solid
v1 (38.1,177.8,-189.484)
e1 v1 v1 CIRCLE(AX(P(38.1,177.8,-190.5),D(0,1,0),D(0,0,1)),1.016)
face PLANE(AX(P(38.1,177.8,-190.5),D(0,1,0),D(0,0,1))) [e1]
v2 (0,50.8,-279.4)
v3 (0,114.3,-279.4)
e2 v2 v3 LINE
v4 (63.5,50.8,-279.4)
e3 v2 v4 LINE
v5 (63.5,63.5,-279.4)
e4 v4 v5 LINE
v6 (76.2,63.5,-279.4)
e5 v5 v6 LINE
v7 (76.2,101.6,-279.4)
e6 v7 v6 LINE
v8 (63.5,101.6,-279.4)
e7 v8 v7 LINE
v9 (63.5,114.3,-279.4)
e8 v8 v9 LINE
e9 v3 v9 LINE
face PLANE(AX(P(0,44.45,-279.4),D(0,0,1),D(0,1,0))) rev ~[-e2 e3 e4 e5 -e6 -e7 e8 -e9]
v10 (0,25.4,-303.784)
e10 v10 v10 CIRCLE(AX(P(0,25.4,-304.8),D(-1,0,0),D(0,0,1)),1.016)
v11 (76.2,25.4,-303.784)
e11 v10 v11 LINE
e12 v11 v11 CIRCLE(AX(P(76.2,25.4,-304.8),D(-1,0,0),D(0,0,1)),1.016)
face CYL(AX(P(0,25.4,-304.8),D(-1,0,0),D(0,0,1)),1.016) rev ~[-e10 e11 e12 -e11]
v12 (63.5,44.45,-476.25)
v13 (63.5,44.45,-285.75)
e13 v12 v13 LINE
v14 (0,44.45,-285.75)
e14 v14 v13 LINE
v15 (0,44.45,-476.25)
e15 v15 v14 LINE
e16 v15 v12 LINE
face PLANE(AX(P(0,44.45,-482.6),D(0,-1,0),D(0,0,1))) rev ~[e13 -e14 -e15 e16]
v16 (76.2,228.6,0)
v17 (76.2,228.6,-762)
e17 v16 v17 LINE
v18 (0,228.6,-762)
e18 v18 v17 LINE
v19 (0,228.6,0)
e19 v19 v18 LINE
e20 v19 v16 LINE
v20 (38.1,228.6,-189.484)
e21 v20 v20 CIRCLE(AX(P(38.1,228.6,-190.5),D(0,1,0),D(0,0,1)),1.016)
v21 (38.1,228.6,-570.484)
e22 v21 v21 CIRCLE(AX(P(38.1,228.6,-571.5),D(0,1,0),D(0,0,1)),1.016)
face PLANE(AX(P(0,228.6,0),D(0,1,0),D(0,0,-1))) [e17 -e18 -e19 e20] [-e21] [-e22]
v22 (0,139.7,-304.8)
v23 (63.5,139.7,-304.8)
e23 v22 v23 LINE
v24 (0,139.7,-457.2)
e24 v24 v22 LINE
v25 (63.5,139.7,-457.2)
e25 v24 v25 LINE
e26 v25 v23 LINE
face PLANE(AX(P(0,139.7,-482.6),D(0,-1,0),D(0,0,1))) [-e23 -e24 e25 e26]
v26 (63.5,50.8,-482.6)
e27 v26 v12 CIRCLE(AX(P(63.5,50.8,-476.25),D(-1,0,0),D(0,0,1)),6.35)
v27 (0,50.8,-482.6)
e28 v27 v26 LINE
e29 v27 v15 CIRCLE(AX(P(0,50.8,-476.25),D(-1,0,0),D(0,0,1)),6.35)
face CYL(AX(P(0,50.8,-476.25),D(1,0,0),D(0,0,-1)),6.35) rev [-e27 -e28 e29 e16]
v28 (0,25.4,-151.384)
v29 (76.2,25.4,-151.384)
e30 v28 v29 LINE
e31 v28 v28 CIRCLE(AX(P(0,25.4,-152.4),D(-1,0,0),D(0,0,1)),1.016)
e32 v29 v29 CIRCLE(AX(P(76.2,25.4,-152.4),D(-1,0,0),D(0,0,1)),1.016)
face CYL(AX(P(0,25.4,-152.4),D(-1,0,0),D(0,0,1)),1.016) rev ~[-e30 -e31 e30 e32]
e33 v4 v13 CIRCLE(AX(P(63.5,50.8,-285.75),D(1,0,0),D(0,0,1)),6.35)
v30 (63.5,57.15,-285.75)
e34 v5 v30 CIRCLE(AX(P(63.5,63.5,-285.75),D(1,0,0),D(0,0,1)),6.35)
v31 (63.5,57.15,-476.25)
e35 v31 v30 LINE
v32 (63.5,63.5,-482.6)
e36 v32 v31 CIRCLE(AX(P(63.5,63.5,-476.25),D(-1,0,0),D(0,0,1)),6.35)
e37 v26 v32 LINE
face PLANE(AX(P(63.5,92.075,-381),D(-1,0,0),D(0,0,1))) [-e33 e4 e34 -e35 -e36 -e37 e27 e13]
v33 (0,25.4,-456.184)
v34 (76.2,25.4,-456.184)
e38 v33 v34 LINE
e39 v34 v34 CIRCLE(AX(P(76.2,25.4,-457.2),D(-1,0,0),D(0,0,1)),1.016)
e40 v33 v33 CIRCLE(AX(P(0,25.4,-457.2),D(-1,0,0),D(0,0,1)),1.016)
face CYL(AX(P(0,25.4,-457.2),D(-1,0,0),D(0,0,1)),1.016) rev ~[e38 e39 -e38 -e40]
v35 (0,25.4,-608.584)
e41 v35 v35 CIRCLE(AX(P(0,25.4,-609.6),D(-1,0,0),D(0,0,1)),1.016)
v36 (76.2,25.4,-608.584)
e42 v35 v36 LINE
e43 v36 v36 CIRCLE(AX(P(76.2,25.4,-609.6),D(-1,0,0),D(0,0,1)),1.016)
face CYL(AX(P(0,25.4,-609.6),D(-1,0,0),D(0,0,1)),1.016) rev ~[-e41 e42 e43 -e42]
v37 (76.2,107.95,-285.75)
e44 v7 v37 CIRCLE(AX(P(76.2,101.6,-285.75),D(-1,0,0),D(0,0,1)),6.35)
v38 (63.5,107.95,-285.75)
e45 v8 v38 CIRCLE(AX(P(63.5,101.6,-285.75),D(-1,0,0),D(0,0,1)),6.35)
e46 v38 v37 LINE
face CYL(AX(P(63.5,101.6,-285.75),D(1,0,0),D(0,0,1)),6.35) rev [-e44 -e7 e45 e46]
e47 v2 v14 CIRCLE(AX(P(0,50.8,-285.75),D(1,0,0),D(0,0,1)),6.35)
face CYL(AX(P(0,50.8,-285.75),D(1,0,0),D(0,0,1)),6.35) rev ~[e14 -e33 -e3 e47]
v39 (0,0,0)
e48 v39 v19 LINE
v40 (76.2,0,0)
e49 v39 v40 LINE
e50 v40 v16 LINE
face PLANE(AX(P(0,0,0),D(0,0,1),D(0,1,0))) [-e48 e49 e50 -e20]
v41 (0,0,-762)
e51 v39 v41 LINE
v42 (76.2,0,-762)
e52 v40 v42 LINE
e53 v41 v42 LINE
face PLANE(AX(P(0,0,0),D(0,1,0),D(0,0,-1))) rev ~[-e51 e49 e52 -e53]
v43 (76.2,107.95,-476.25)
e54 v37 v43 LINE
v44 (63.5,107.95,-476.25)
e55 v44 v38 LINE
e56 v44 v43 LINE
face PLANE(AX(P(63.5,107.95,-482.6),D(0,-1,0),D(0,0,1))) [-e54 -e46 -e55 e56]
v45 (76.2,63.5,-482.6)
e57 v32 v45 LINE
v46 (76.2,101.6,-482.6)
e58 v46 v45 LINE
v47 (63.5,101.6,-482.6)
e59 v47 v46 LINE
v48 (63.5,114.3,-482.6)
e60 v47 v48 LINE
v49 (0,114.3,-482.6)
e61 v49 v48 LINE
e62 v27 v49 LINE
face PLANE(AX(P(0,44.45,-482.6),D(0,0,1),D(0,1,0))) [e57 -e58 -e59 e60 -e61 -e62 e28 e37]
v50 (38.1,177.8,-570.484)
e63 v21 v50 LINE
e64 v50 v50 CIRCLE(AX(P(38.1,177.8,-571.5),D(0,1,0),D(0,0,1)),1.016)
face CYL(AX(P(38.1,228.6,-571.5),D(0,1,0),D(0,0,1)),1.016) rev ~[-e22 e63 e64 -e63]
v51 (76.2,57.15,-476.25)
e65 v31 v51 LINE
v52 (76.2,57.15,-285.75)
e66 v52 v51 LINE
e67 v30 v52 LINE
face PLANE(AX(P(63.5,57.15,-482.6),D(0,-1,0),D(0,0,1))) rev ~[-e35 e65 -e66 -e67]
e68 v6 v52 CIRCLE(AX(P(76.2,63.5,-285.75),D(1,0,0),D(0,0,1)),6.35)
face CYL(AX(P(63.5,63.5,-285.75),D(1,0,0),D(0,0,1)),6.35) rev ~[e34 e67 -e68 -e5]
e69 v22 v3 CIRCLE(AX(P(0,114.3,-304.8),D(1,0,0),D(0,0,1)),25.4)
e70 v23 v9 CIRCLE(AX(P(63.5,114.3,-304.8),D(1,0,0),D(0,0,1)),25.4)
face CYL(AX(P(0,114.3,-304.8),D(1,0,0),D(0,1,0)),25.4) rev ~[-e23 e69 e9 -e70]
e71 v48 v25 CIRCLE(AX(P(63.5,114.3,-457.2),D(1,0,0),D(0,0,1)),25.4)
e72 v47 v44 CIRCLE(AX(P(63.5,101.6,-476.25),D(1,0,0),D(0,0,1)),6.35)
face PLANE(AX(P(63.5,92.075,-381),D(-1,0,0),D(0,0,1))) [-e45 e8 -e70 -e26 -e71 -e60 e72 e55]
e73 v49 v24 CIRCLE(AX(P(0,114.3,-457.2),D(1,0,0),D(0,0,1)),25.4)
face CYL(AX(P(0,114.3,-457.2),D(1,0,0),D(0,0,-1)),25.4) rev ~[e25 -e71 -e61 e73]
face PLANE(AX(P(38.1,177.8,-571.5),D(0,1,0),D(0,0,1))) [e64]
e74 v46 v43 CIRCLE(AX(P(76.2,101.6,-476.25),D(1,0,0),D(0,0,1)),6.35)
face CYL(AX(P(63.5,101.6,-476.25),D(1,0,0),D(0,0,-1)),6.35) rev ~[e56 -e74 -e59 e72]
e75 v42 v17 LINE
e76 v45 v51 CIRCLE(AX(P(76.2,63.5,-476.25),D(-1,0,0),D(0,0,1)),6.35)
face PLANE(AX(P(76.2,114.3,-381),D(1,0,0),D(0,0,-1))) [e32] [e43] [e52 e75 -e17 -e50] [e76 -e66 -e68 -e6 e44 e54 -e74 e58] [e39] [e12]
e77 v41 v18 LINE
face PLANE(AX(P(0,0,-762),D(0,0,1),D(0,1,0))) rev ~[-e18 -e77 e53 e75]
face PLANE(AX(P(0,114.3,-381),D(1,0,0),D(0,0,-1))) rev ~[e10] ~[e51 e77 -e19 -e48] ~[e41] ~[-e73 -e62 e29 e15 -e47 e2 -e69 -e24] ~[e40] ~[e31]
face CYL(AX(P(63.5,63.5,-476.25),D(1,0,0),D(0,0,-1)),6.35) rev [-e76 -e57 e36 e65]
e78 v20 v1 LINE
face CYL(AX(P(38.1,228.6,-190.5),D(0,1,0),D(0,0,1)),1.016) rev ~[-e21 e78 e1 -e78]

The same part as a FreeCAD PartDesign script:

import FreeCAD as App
import Part
import Sketcher
Q = App.Units.Quantity


def edges_at(feature, points):
    """Names of the edges that pass closest to the given points."""
    edges = feature.Shape.Edges
    near = lambda p: min(range(len(edges)), key=lambda i: edges[i].distToShape(Part.Vertex(*p))[0])
    return sorted({f"Edge{near(p) + 1}" for p in points})


def add_polygon(sketch, points):
    """Adds a closed chain of lines whose ends are joined by coincident constraints."""
    first, n = sketch.GeometryCount, len(points)
    for a, b in zip(points, points[1:] + points[:1]):
        sketch.addGeometry(Part.LineSegment(App.Vector(*a, 0), App.Vector(*b, 0)), False)
    for i in range(n):
        sketch.addConstraint(Sketcher.Constraint("Coincident", first + i, 2, first + (i + 1) % n, 1))

doc = App.newDocument("Part")
body = doc.addObject("PartDesign::Body", "Body")

# Sketch on YZ plane
sketch1 = doc.addObject("Sketcher::SketchObject", "Sketch")
body.addObject(sketch1)
sketch1.AttachmentSupport = (doc.YZ_Plane, [""])
sketch1.MapMode = "FlatFace"
add_polygon(sketch1, [(229, 0), (0, 0), (0, -762), (229, -762)])  # lines 0-3
sketch1.addConstraint([
    Sketcher.Constraint("Horizontal", 0),
    Sketcher.Constraint("Vertical", 1),
    Sketcher.Constraint("Horizontal", 2),
    Sketcher.Constraint("Vertical", 3),
    Sketcher.Constraint("Coincident", 0, 2, -1, 1),
    Sketcher.Constraint("DistanceX", 0, 2, 0, 1, Q("9 in")),
    Sketcher.Constraint("DistanceY", 1, 2, 1, 1, Q("30 in")),
])
pad1 = doc.addObject("PartDesign::Pad", "Pad")
body.addObject(pad1)
pad1.Profile = sketch1
pad1.Length = Q("3 in")

# Sketch on YZ plane
sketch2 = doc.addObject("Sketcher::SketchObject", "Sketch001")
body.addObject(sketch2)
sketch2.AttachmentSupport = (doc.YZ_Plane, [""])
sketch2.MapMode = "FlatFace"
add_polygon(sketch2, [(140, -483), (44, -483), (44, -279), (140, -279)])  # lines 0-3
sketch2.addConstraint([
    Sketcher.Constraint("Horizontal", 0),
    Sketcher.Constraint("Vertical", 1),
    Sketcher.Constraint("Horizontal", 2),
    Sketcher.Constraint("Vertical", 3),
    Sketcher.Constraint("DistanceY", 1, 1, 1, 2, Q("8 in")),
    Sketcher.Constraint("DistanceY", 0, 2, -1, 1, Q("19 in")),
    Sketcher.Constraint("DistanceX", 0, 2, 0, 1, Q("3.75 in")),
    Sketcher.Constraint("DistanceX", -1, 1, 2, 2, Q("5.5 in")),
])
pocket1 = doc.addObject("PartDesign::Pocket", "Pocket")
body.addObject(pocket1)
pocket1.Profile = sketch2
pocket1.Length = Q("2.5 in")
pocket1.Reversed = True

# Sketch on YZ plane
sketch3 = doc.addObject("Sketcher::SketchObject", "Sketch002")
body.addObject(sketch3)
sketch3.AttachmentSupport = (doc.YZ_Plane, [""])
sketch3.MapMode = "FlatFace"
sketch3.AttachmentOffset = App.Placement(App.Vector(0, 0, 2.5 * 25.4), App.Rotation())
add_polygon(sketch3, [(108, -483), (57, -483), (57, -279), (108, -279)])  # lines 0-3
sketch3.addConstraint([
    Sketcher.Constraint("Horizontal", 0),
    Sketcher.Constraint("Vertical", 1),
    Sketcher.Constraint("Horizontal", 2),
    Sketcher.Constraint("Vertical", 3),
    Sketcher.Constraint("DistanceX", 0, 2, 0, 1, Q("2 in")),
    Sketcher.Constraint("DistanceY", 1, 1, 1, 2, Q("8 in")),
    Sketcher.Constraint("DistanceY", 0, 2, -1, 1, Q("19 in")),
    Sketcher.Constraint("DistanceX", -1, 1, 0, 2, Q("2.25 in")),
])
pocket2 = doc.addObject("PartDesign::Pocket", "Pocket001")
body.addObject(pocket2)
pocket2.Profile = sketch3
pocket2.Type = "ThroughAll"
pocket2.Reversed = True
doc.recompute()

fillet = doc.addObject("PartDesign::Fillet", "Fillet")
body.addObject(fillet)
fillet.Base = (pocket2, edges_at(pocket2, [(31.75, 139.7, -482.6), (31.75, 139.7, -279.4)]))
fillet.Radius = Q("1 in")

# Sketch on YZ plane
sketch4 = doc.addObject("Sketcher::SketchObject", "Sketch003")
body.addObject(sketch4)
sketch4.AttachmentSupport = (doc.YZ_Plane, [""])
sketch4.MapMode = "FlatFace"
sketch4.addGeometry(Part.Circle(App.Vector(25.4, -609.6, 0), App.Vector(0, 0, 1), 1), False)
sketch4.addConstraint([
    Sketcher.Constraint("Diameter", 0, Q("0.08 in")),
    Sketcher.Constraint("DistanceX", -1, 1, 0, 3, Q("1 in")),
    Sketcher.Constraint("DistanceY", 0, 3, -1, 1, Q("24 in")),
])
pocket3 = doc.addObject("PartDesign::Pocket", "Pocket002")
body.addObject(pocket3)
pocket3.Profile = sketch4
pocket3.Type = "ThroughAll"
pocket3.Reversed = True
doc.recompute()

linearpattern = doc.addObject("PartDesign::LinearPattern", "LinearPattern")
body.addObject(linearpattern)
linearpattern.Originals = [pocket3]
linearpattern.Direction = (doc.Z_Axis, [""])
linearpattern.Mode = "offset"
linearpattern.Offset = Q("6 in")
linearpattern.Occurrences = 4
body.Tip = linearpattern
doc.recompute()

fillet2 = doc.addObject("PartDesign::Fillet", "Fillet001")
body.addObject(fillet2)
fillet2.Base = (linearpattern, edges_at(linearpattern, [
    (69.85, 57.15, -482.6),
    (69.85, 107.95, -482.6),
    (69.85, 107.95, -279.4),
    (69.85, 57.15, -279.4),
]))
fillet2.Radius = Q("0.25 in")
doc.recompute()

fillet3 = doc.addObject("PartDesign::Fillet", "Fillet002")
body.addObject(fillet3)
fillet3.Base = (fillet2, edges_at(fillet2, [(31.75, 44.45, -482.6), (31.75, 44.45, -279.4)]))
fillet3.Radius = Q("0.25 in")

# Sketch on XZ plane
sketch5 = doc.addObject("Sketcher::SketchObject", "Sketch004")
body.addObject(sketch5)
sketch5.AttachmentSupport = (doc.XZ_Plane, [""])
sketch5.MapMode = "FlatFace"
sketch5.AttachmentOffset = App.Placement(App.Vector(0, 0, -9 * 25.4), App.Rotation())
sketch5.addGeometry([
    Part.Circle(App.Vector(38.1, -571.5, 0), App.Vector(0, 0, 1), 1),
    Part.Circle(App.Vector(38.1, -190.5, 0), App.Vector(0, 0, 1), 1),
], False)
sketch5.addConstraint([
    Sketcher.Constraint("Equal", 0, 1),
    Sketcher.Constraint("Vertical", 0, 3, 1, 3),
    Sketcher.Constraint("Diameter", 0, Q("0.08 in")),
    Sketcher.Constraint("DistanceY", 0, 3, 1, 3, Q("15 in")),
    Sketcher.Constraint("DistanceX", -1, 1, 0, 3, Q("1.5 in")),
    Sketcher.Constraint("DistanceY", 0, 3, -1, 1, Q("22.5 in")),
])
pocket4 = doc.addObject("PartDesign::Pocket", "Pocket003")
body.addObject(pocket4)
pocket4.Profile = sketch5
pocket4.Length = Q("2 in")
pocket4.Reversed = True

doc.recompute()
